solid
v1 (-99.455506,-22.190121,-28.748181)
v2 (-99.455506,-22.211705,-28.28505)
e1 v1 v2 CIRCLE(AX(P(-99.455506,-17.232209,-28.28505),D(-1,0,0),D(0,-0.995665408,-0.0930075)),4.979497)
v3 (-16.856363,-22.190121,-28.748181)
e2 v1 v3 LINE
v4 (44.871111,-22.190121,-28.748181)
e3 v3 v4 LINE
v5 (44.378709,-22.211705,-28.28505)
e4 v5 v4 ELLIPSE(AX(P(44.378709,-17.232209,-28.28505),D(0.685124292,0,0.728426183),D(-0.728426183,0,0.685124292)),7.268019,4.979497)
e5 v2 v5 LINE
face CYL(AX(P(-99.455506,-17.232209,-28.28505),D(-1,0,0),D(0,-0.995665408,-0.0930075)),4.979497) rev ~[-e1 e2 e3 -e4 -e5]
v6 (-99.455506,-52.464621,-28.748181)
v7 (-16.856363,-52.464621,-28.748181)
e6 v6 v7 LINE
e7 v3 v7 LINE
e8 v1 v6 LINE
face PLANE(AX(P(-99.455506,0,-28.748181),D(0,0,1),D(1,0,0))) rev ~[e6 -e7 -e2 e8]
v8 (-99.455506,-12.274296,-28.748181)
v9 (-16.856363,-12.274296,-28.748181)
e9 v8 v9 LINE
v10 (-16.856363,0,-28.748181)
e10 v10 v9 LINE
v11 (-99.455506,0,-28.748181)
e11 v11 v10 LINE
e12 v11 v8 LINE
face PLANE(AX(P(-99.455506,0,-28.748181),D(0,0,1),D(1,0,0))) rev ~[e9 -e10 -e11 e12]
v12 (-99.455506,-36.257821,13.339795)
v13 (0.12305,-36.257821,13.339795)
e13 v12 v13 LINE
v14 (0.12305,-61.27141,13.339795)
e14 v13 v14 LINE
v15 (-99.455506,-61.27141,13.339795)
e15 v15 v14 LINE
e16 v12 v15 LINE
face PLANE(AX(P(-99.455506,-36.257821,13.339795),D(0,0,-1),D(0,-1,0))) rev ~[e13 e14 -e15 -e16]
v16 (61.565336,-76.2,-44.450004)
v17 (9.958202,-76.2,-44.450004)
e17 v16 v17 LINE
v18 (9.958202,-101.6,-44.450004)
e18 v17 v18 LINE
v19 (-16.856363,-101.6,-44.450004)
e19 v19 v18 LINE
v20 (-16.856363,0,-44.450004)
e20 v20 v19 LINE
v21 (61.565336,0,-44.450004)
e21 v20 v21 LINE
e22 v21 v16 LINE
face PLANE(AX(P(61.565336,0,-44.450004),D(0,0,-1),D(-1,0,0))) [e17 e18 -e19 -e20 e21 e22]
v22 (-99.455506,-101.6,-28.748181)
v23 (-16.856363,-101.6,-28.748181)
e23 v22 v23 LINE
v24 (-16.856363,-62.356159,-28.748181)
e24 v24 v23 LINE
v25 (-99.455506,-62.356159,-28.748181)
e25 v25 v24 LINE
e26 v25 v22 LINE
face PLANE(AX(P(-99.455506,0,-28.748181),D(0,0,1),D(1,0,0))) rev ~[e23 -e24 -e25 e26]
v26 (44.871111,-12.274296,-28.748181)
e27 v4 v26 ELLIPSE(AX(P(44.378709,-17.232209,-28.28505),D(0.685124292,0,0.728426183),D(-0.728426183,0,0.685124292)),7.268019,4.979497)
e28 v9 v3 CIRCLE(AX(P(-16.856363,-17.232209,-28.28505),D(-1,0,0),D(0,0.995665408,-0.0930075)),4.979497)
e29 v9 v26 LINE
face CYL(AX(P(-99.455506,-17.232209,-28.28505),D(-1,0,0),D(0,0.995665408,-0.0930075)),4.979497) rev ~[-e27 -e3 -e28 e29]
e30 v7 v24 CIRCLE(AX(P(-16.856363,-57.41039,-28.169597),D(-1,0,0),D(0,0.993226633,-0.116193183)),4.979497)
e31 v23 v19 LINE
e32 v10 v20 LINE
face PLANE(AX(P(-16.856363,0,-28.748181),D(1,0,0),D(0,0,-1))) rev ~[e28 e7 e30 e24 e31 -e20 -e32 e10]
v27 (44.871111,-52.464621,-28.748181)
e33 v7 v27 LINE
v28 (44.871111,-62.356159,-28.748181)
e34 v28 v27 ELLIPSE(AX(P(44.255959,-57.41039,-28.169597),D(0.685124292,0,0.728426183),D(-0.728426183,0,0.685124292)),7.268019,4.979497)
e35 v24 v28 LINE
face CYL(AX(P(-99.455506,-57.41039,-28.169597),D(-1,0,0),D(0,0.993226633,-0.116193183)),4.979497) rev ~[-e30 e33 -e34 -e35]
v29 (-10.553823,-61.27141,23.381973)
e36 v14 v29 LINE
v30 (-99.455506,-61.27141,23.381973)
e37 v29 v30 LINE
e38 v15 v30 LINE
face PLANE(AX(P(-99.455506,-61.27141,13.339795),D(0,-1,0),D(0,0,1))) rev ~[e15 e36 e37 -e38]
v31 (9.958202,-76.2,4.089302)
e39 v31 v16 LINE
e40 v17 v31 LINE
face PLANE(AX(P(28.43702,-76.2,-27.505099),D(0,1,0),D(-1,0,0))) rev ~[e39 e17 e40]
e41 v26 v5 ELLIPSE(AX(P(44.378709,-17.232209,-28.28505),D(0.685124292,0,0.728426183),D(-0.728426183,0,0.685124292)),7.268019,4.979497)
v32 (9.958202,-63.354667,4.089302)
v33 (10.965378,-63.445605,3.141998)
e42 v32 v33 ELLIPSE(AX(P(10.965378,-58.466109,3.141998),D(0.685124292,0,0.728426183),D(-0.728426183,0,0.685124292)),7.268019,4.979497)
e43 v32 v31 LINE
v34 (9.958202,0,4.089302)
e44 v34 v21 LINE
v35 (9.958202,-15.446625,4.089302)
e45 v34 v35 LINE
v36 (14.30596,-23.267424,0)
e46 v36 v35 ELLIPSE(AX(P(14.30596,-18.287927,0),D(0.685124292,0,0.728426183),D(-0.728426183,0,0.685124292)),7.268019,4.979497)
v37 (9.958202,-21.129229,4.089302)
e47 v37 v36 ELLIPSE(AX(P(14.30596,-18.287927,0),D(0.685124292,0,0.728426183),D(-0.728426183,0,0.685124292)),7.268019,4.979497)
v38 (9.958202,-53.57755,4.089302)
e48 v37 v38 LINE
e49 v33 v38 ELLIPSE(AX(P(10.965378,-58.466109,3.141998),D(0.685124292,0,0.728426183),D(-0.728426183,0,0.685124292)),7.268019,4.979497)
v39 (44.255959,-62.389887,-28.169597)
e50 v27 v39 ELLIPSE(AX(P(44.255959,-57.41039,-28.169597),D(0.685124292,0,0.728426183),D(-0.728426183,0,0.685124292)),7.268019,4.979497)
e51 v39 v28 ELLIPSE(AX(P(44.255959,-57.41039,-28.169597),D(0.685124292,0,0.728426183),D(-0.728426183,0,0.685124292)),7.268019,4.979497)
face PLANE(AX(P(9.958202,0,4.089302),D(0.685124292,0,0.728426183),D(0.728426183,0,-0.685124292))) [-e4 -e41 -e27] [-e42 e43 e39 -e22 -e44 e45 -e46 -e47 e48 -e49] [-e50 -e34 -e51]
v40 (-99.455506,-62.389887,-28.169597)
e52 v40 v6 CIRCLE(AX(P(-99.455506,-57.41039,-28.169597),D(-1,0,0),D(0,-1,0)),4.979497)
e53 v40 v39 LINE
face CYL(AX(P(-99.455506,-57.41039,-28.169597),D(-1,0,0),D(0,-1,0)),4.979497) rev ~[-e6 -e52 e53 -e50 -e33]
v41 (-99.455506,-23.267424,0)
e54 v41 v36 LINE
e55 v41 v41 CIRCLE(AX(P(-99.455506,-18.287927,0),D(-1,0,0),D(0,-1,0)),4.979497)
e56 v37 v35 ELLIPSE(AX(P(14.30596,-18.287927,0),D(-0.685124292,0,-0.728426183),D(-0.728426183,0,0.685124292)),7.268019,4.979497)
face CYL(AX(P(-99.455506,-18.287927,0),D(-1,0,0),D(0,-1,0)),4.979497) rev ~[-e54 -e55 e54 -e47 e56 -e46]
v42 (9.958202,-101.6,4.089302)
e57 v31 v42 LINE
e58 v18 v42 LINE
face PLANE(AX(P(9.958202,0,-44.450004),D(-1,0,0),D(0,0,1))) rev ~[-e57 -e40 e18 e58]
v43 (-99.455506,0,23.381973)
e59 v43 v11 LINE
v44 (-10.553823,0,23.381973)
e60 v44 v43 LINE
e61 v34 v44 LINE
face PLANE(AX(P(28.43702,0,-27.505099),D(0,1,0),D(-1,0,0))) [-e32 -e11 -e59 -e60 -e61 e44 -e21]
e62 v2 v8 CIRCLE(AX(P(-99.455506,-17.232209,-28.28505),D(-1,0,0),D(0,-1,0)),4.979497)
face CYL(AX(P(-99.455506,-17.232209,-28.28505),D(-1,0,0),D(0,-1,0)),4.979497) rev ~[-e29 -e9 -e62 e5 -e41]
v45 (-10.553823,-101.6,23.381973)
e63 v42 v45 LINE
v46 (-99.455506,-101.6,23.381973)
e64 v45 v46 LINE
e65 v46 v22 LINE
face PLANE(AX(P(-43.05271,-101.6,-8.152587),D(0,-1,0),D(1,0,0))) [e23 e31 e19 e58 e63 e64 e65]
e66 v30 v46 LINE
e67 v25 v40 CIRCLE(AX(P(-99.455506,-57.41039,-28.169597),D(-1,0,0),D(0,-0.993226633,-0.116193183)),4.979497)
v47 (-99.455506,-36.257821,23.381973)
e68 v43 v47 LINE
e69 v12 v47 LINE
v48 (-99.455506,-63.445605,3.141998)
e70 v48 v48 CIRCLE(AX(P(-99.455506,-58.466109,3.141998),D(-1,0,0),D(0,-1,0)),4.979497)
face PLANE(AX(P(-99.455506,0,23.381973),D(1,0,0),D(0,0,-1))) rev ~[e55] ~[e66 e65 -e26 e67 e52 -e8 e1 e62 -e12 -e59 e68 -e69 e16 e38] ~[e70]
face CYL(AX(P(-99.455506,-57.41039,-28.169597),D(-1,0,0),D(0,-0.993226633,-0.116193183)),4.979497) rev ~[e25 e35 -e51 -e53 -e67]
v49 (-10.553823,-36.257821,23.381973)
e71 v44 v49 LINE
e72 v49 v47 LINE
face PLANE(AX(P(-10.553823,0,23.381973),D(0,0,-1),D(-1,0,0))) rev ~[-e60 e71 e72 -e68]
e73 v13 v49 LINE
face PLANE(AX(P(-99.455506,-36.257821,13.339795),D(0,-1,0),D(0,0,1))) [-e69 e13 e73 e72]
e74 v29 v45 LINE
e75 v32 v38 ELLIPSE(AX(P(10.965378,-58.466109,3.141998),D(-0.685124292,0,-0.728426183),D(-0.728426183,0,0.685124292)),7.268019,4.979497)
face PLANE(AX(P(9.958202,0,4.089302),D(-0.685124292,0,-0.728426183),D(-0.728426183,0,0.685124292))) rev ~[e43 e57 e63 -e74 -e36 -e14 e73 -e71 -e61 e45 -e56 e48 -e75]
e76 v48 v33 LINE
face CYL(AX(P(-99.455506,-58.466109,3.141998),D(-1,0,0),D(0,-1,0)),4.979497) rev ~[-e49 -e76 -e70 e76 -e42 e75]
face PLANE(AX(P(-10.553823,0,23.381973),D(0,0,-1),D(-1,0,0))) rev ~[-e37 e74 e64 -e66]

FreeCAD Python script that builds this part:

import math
import FreeCAD as App
import Part
import Sketcher
Q = App.Units.Quantity


def add_polygon(sketch, points):
    """Adds a closed chain of lines whose ends are joined by coincident constraints."""
    first, n = sketch.GeometryCount, len(points)
    for a, b in zip(points, points[1:] + points[:1]):
        sketch.addGeometry(Part.LineSegment(App.Vector(*a, 0), App.Vector(*b, 0)), False)
    for i in range(n):
        sketch.addConstraint(Sketcher.Constraint("Coincident", first + i, 2, first + (i + 1) % n, 1))

doc = App.newDocument("Part")
body = doc.addObject("PartDesign::Body", "Body")

# Sketch on XZ plane
sketch1 = doc.addObject("Sketcher::SketchObject", "Sketch")
body.addObject(sketch1)
sketch1.AttachmentSupport = (doc.XZ_Plane, [""])
sketch1.MapMode = "FlatFace"
add_polygon(sketch1, [(-99, 23), (-99, -29), (-17, -29), (-17, -44), (10, -44), (10, 4), (-11, 23)])  # lines 0-6
sketch1.addConstraint([
    Sketcher.Constraint("Vertical", 0),
    Sketcher.Constraint("Horizontal", 1),
    Sketcher.Constraint("Vertical", 2),
    Sketcher.Constraint("Horizontal", 3),
    Sketcher.Constraint("Vertical", 4),
    Sketcher.Constraint("Horizontal", 6),
    Sketcher.Constraint("DistanceY", 2, 2, -1, 1, Q("1.7500001 in")),
    Sketcher.Constraint("DistanceY", -1, 1, 4, 2, Q("4.089302 mm")),
    Sketcher.Constraint("DistanceX", 1, 1, 1, 2, Q("82.599143 mm")),
    Sketcher.Constraint("DistanceX", 3, 1, 3, 2, Q("26.814565 mm")),
    Sketcher.Constraint("DistanceX", 6, 2, 6, 1, Q("88.901683 mm")),
    Sketcher.Constraint("DistanceY", 0, 2, 0, 1, Q("52.130153 mm")),
    Sketcher.Constraint("DistanceY", 2, 2, 2, 1, Q("15.701823 mm")),
    Sketcher.Constraint("DistanceX", 0, 2, -1, 1, Q("99.455506 mm")),
])
pad1 = doc.addObject("PartDesign::Pad", "Pad")
body.addObject(pad1)
pad1.Profile = sketch1
pad1.Length = Q("4 in")

# Sketch on XZ plane
sketch2 = doc.addObject("Sketcher::SketchObject", "Sketch001")
body.addObject(sketch2)
sketch2.AttachmentSupport = (doc.XZ_Plane, [""])
sketch2.MapMode = "FlatFace"
add_polygon(sketch2, [(10, -44), (10, 4), (62, -44)])  # lines 0-2
sketch2.addConstraint([
    Sketcher.Constraint("Vertical", 0),
    Sketcher.Constraint("Horizontal", 2),
    Sketcher.Constraint("DistanceY", 1, 2, -1, 1, Q("1.7500001 in")),
    Sketcher.Constraint("DistanceY", -1, 1, 0, 2, Q("4.089302 mm")),
    Sketcher.Constraint("DistanceX", 2, 2, 2, 1, Q("51.607134 mm")),
    Sketcher.Constraint("DistanceX", -1, 1, 0, 2, Q("9.958202 mm")),
])
pad2 = doc.addObject("PartDesign::Pad", "Pad001")
body.addObject(pad2)
pad2.Profile = sketch2
pad2.Length = Q("3 in")

# Sketch on YZ plane
sketch3 = doc.addObject("Sketcher::SketchObject", "Sketch002")
body.addObject(sketch3)
sketch3.AttachmentSupport = (doc.YZ_Plane, [""])
sketch3.MapMode = "FlatFace"
sketch3.AttachmentOffset = App.Placement(App.Vector(0, 0, -99.455506), App.Rotation())
add_polygon(sketch3, [(-36, 33), (-36, 13), (-61, 13), (-61, 33)])  # lines 0-3
sketch3.addConstraint([
    Sketcher.Constraint("Vertical", 0),
    Sketcher.Constraint("Horizontal", 1),
    Sketcher.Constraint("Vertical", 2),
    Sketcher.Constraint("Horizontal", 3),
    Sketcher.Constraint("DistanceX", 1, 2, 1, 1, Q("25.013589 mm")),
    Sketcher.Constraint("DistanceY", 0, 2, 0, 1, Q("20.084355 mm")),
    Sketcher.Constraint("DistanceX", 0, 2, -1, 1, Q("36.257821 mm")),
    Sketcher.Constraint("DistanceY", -1, 1, 2, 2, Q("33.42415 mm")),
])
pocket1 = doc.addObject("PartDesign::Pocket", "Pocket")
body.addObject(pocket1)
pocket1.Profile = sketch3
pocket1.Length = Q("4.07 in")
pocket1.Reversed = True

# Sketch on YZ plane
sketch4 = doc.addObject("Sketcher::SketchObject", "Sketch003")
body.addObject(sketch4)
sketch4.AttachmentSupport = (doc.YZ_Plane, [""])
sketch4.MapMode = "FlatFace"
sketch4.AttachmentOffset = App.Placement(App.Vector(0, 0, -99.455506), App.Rotation())
sketch4.addGeometry([
    Part.Circle(App.Vector(-18.29, 0, 0), App.Vector(0, 0, 1), 4.98),  # 0
    Part.ArcOfCircle(Part.Circle(App.Vector(-57.41, -28.17, 0), App.Vector(0, 0, 1), 4.98), math.radians(-173), math.radians(-7)),  # 1
    Part.ArcOfCircle(Part.Circle(App.Vector(-57.41, -28.17, 0), App.Vector(0, 0, 1), 4.98), math.radians(-180), math.radians(-173.33)),  # 2
    Part.ArcOfCircle(Part.Circle(App.Vector(-57.41, -28.17, 0), App.Vector(0, 0, 1), 4.98), math.radians(-7), math.radians(180)),  # 3
    Part.Circle(App.Vector(-58.47, 3.14, 0), App.Vector(0, 0, 1), 4.98),  # 4
    Part.ArcOfCircle(Part.Circle(App.Vector(-17.23, -28.29, 0), App.Vector(0, 0, 1), 4.98), math.radians(-175), math.radians(-5)),  # 5
    Part.ArcOfCircle(Part.Circle(App.Vector(-17.23, -28.29, 0), App.Vector(0, 0, 1), 4.98), math.radians(-180), math.radians(-174.66)),  # 6
    Part.ArcOfCircle(Part.Circle(App.Vector(-17.23, -28.29, 0), App.Vector(0, 0, 1), 4.98), math.radians(-5), math.radians(180)),  # 7
], False)
sketch4.addConstraint([
    Sketcher.Constraint("Tangent", 1, 1, 2, 2),
    Sketcher.Constraint("Tangent", 2, 1, 3, 2),
    Sketcher.Constraint("Tangent", 3, 1, 1, 2),
    Sketcher.Constraint("Tangent", 5, 1, 6, 2),
    Sketcher.Constraint("Tangent", 6, 1, 7, 2),
    Sketcher.Constraint("Tangent", 7, 1, 5, 2),
    Sketcher.Constraint("Equal", 0, 1),
    Sketcher.Constraint("Equal", 3, 4),
    Sketcher.Constraint("Equal", 4, 5),
    Sketcher.Constraint("PointOnObject", 0, 3, -1),
    Sketcher.Constraint("Horizontal", 3, 3, 2, 1),
    Sketcher.Constraint("Horizontal", 1, 1, 3, 1),
    Sketcher.Constraint("Horizontal", 3, 1, 5, 1),
    Sketcher.Constraint("Horizontal", 7, 3, 6, 1),
    Sketcher.Constraint("Horizontal", 5, 1, 7, 1),
    Sketcher.Constraint("Diameter", 0, Q("9.958993 mm")),
    Sketcher.Constraint("DistanceY", -1, 1, 4, 3, Q("3.141998 mm")),
    Sketcher.Constraint("DistanceX", 4, 3, 5, 3, Q("41.2339 mm")),
    Sketcher.Constraint("DistanceX", 3, 1, 5, 1, Q("30.2745 mm")),
    Sketcher.Constraint("DistanceX", 1, 3, -1, 1, Q("57.41039 mm")),
    Sketcher.Constraint("DistanceX", 4, 3, -1, 1, Q("58.466109 mm")),
    Sketcher.Constraint("DistanceY", 5, 3, -1, 1, Q("28.28505 mm")),
    Sketcher.Constraint("DistanceX", 1, 1, -1, 1, Q("62.356159 mm")),
    Sketcher.Constraint("DistanceX", 4, 3, 0, 3, Q("40.178182 mm")),
])
pocket2 = doc.addObject("PartDesign::Pocket", "Pocket001")
body.addObject(pocket2)
pocket2.Profile = sketch4
pocket2.Length = Q("6.58 in")
pocket2.Reversed = True

doc.recompute()
